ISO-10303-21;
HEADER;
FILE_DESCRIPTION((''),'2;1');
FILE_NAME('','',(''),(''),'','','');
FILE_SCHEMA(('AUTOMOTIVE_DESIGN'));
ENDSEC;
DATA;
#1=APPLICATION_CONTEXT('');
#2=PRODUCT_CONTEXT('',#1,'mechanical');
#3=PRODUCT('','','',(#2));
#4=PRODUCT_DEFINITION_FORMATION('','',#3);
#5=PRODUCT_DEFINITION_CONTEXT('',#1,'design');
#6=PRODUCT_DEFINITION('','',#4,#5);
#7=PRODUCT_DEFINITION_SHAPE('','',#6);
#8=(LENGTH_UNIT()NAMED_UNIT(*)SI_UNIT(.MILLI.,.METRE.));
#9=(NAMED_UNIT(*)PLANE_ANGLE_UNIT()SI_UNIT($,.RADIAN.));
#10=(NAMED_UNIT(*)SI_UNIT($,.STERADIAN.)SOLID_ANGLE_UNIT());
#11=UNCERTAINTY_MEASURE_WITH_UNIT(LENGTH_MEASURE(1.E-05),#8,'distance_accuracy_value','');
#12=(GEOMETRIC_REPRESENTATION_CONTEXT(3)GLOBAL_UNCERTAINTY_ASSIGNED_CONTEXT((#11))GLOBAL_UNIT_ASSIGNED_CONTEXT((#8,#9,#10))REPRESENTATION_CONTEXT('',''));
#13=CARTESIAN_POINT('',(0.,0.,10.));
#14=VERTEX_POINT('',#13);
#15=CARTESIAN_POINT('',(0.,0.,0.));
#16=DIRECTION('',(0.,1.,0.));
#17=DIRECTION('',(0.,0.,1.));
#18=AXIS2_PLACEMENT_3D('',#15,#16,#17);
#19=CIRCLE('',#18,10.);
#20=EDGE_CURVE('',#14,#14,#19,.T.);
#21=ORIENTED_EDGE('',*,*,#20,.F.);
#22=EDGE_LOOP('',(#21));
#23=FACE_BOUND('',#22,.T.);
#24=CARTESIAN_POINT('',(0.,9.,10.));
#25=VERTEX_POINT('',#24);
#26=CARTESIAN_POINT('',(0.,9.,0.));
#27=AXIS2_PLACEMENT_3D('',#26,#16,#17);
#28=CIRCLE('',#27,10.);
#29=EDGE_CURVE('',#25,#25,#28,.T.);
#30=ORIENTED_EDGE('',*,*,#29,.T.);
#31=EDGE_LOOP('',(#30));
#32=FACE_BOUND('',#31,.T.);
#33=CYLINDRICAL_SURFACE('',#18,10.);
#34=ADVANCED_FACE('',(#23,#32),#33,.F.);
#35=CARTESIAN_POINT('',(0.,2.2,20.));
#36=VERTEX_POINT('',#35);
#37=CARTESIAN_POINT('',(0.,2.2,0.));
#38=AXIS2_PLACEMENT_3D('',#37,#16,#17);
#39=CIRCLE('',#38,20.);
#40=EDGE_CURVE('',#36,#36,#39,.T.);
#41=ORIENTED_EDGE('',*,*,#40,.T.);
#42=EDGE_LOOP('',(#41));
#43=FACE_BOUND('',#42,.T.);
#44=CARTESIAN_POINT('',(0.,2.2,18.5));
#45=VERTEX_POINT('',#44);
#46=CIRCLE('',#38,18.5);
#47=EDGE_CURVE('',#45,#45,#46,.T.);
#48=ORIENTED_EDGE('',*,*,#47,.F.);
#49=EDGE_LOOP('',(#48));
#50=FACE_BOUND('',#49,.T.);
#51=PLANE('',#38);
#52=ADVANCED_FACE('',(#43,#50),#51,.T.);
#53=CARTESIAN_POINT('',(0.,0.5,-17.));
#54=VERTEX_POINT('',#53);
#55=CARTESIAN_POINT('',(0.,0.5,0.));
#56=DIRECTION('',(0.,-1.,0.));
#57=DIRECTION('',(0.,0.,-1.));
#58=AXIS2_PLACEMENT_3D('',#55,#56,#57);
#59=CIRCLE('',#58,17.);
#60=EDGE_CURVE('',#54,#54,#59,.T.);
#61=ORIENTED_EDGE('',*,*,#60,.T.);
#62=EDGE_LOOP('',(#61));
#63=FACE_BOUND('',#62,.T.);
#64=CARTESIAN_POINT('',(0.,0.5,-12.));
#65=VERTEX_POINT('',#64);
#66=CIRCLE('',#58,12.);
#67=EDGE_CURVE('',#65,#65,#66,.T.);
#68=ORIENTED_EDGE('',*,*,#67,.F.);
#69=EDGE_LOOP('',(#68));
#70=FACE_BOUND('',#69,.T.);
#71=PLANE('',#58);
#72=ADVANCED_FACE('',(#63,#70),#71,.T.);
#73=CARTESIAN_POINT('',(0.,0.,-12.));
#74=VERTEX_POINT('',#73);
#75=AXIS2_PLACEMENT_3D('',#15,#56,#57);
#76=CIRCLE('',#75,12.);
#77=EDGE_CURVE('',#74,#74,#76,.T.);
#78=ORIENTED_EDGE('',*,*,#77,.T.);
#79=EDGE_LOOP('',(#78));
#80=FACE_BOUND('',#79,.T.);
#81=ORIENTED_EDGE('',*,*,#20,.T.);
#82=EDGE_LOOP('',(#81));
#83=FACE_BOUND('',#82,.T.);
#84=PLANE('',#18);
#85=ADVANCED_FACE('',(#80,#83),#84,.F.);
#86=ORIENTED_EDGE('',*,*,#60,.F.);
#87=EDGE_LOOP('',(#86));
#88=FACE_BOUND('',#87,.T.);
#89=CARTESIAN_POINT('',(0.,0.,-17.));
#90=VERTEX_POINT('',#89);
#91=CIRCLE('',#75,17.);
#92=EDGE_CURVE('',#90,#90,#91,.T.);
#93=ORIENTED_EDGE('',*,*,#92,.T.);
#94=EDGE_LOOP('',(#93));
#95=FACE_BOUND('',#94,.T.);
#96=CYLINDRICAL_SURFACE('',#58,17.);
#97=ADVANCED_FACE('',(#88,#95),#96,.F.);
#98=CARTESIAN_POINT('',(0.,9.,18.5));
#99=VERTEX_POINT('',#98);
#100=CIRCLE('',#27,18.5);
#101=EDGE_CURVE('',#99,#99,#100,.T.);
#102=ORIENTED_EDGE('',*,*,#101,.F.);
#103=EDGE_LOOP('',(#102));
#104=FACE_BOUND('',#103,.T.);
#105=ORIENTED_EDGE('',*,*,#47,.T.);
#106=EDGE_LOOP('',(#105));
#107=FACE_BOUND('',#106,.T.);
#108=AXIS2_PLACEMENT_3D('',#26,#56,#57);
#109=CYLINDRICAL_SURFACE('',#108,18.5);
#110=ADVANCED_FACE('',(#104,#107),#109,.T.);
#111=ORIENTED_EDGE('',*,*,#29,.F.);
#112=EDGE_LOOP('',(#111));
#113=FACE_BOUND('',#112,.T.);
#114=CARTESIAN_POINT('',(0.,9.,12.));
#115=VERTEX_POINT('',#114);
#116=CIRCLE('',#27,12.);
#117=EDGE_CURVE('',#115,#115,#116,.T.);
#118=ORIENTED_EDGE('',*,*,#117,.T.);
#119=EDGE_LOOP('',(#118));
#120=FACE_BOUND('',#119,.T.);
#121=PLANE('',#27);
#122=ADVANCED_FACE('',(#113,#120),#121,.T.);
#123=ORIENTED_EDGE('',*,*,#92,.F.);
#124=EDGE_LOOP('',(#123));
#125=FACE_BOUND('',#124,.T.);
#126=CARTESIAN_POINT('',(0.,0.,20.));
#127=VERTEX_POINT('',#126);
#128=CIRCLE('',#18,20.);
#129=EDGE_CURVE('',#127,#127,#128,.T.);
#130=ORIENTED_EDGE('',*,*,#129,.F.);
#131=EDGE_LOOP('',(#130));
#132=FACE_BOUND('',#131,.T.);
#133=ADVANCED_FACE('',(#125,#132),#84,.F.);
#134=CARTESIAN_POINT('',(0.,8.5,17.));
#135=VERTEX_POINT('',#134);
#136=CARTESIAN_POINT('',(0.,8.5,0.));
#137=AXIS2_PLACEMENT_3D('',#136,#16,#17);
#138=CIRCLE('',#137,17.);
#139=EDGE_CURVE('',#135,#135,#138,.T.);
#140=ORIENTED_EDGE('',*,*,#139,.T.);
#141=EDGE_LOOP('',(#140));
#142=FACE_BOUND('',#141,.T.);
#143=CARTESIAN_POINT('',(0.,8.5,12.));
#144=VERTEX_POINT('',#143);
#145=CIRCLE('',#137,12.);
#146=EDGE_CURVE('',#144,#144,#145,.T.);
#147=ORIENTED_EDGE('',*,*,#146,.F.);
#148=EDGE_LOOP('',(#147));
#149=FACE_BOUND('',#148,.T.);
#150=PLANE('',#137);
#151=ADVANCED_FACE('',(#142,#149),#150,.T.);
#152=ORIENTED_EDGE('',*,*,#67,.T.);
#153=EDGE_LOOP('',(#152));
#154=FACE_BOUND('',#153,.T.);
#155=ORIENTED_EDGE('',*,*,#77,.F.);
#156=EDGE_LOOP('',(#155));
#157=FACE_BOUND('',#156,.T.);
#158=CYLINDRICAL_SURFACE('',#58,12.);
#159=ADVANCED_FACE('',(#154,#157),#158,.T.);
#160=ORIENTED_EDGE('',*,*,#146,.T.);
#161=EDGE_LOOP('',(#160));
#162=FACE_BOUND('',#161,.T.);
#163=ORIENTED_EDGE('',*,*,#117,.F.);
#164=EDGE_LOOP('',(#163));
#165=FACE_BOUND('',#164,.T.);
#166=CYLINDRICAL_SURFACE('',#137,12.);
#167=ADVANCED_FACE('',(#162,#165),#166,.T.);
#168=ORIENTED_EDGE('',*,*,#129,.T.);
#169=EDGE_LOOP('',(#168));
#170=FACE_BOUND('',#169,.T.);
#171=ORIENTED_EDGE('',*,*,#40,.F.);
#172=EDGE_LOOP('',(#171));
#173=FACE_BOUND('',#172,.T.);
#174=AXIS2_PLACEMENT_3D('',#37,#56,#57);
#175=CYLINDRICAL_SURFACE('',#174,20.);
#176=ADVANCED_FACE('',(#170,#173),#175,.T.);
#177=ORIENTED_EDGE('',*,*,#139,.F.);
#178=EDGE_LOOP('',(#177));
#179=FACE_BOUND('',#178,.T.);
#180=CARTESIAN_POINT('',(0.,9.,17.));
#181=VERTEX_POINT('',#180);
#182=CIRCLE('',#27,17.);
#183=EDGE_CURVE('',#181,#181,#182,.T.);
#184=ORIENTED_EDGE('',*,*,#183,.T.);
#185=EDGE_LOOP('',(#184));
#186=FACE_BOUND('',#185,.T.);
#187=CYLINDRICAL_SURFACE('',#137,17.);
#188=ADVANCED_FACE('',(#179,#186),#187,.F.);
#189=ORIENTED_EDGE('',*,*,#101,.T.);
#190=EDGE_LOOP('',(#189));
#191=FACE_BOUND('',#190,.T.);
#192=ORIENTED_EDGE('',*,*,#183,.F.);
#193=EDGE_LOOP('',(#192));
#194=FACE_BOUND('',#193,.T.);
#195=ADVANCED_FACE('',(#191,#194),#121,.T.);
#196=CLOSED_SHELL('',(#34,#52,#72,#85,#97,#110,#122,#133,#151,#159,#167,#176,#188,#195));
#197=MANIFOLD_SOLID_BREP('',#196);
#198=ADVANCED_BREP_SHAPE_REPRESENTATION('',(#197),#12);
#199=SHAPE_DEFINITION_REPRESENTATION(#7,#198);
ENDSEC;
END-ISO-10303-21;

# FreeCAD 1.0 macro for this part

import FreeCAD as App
import Part
import Sketcher

doc = App.newDocument("Part")
params = doc.addObject("Spreadsheet::Sheet", "Params")
for row, (alias, value) in enumerate([
    ("sketch1_diameter", "40 mm"),
    ("pad1_length", "2.2 mm"),
    ("sketch2_diameter", "37 mm"),
    ("pad2_length", "6.8 mm"),
    ("sketch3_diameter", "20 mm"),
    ("pocket1_length", "9 mm"),
    ("sketch4_diameter", "34 mm"),
    ("sketch4_diameter2", "24 mm"),
    ("pocket2_length", "0.5 mm"),
    ("sketch5_diameter", "34 mm"),
    ("sketch5_diameter2", "24 mm"),
    ("pocket3_length", "0.5 mm"),
], start=1):
    params.set(f"A{row}", alias)
    params.set(f"B{row}", "=" + value)
    params.setAlias(f"B{row}", alias)

body = doc.addObject("PartDesign::Body", "Body")

# Sketch on XZ plane
sketch1 = body.newObject("Sketcher::SketchObject", "Sketch")
sketch1.AttachmentSupport = (doc.getObject("XZ_Plane"), [""])
sketch1.MapMode = "FlatFace"
sketch1.addGeometry(Part.Circle(App.Vector(0, 0, 0), App.Vector(0, 0, 1), 20), False)
sketch1.addConstraint(Sketcher.Constraint("Coincident", 0, 3, -1, 1))
sketch1.addConstraint(Sketcher.Constraint("Diameter", 0, 40.0))
sketch1.setExpression("Constraints[1]", "Params.sketch1_diameter")
pad1 = body.newObject("PartDesign::Pad", "Pad")
pad1.Profile = sketch1
pad1.setExpression("Length", "Params.pad1_length")
pad1.Reversed = True

# Sketch on XZ plane
sketch2 = body.newObject("Sketcher::SketchObject", "Sketch001")
sketch2.AttachmentSupport = (doc.getObject("XZ_Plane"), [""])
sketch2.MapMode = "FlatFace"
sketch2.AttachmentOffset = App.Placement(App.Vector(0, 0, -2.2), App.Rotation())
sketch2.addGeometry(Part.Circle(App.Vector(0, 0, 0), App.Vector(0, 0, 1), 18), False)
sketch2.addConstraint(Sketcher.Constraint("Coincident", 0, 3, -1, 1))
sketch2.addConstraint(Sketcher.Constraint("Diameter", 0, 37.0))
sketch2.setExpression("Constraints[1]", "Params.sketch2_diameter")
pad2 = body.newObject("PartDesign::Pad", "Pad001")
pad2.Profile = sketch2
pad2.setExpression("Length", "Params.pad2_length")
pad2.Reversed = True

# Sketch on XZ plane
sketch3 = body.newObject("Sketcher::SketchObject", "Sketch002")
sketch3.AttachmentSupport = (doc.getObject("XZ_Plane"), [""])
sketch3.MapMode = "FlatFace"
sketch3.AttachmentOffset = App.Placement(App.Vector(0, 0, -9), App.Rotation())
sketch3.addGeometry(Part.Circle(App.Vector(0, 0, 0), App.Vector(0, 0, 1), 10), False)
sketch3.addConstraint(Sketcher.Constraint("Coincident", 0, 3, -1, 1))
sketch3.addConstraint(Sketcher.Constraint("Diameter", 0, 20.0))
sketch3.setExpression("Constraints[1]", "Params.sketch3_diameter")
pocket1 = body.newObject("PartDesign::Pocket", "Pocket")
pocket1.Profile = sketch3
pocket1.setExpression("Length", "Params.pocket1_length")
pocket1.Reversed = True

# Sketch on XZ plane
sketch4 = body.newObject("Sketcher::SketchObject", "Sketch003")
sketch4.AttachmentSupport = (doc.getObject("XZ_Plane"), [""])
sketch4.MapMode = "FlatFace"
sketch4.addGeometry(Part.Circle(App.Vector(0, 0, 0), App.Vector(0, 0, 1), 17), False)
sketch4.addGeometry(Part.Circle(App.Vector(0, 0, 0), App.Vector(0, 0, 1), 12), False)
sketch4.addConstraint(Sketcher.Constraint("Coincident", 0, 3, -1, 1))
sketch4.addConstraint(Sketcher.Constraint("Coincident", 1, 3, -1, 1))
sketch4.addConstraint(Sketcher.Constraint("Diameter", 0, 34.0))
sketch4.addConstraint(Sketcher.Constraint("Diameter", 1, 24.0))
sketch4.setExpression("Constraints[2]", "Params.sketch4_diameter")
sketch4.setExpression("Constraints[3]", "Params.sketch4_diameter2")
pocket2 = body.newObject("PartDesign::Pocket", "Pocket001")
pocket2.Profile = sketch4
pocket2.setExpression("Length", "Params.pocket2_length")

# Sketch on XZ plane
sketch5 = body.newObject("Sketcher::SketchObject", "Sketch004")
sketch5.AttachmentSupport = (doc.getObject("XZ_Plane"), [""])
sketch5.MapMode = "FlatFace"
sketch5.AttachmentOffset = App.Placement(App.Vector(0, 0, -8.5), App.Rotation())
sketch5.addGeometry(Part.Circle(App.Vector(0, 0, 0), App.Vector(0, 0, 1), 17), False)
sketch5.addGeometry(Part.Circle(App.Vector(0, 0, 0), App.Vector(0, 0, 1), 12), False)
sketch5.addConstraint(Sketcher.Constraint("Coincident", 0, 3, -1, 1))
sketch5.addConstraint(Sketcher.Constraint("Coincident", 1, 3, -1, 1))
sketch5.addConstraint(Sketcher.Constraint("Diameter", 0, 34.0))
sketch5.addConstraint(Sketcher.Constraint("Diameter", 1, 24.0))
sketch5.setExpression("Constraints[2]", "Params.sketch5_diameter")
sketch5.setExpression("Constraints[3]", "Params.sketch5_diameter2")
pocket3 = body.newObject("PartDesign::Pocket", "Pocket002")
pocket3.Profile = sketch5
pocket3.setExpression("Length", "Params.pocket3_length")

doc.recompute()
